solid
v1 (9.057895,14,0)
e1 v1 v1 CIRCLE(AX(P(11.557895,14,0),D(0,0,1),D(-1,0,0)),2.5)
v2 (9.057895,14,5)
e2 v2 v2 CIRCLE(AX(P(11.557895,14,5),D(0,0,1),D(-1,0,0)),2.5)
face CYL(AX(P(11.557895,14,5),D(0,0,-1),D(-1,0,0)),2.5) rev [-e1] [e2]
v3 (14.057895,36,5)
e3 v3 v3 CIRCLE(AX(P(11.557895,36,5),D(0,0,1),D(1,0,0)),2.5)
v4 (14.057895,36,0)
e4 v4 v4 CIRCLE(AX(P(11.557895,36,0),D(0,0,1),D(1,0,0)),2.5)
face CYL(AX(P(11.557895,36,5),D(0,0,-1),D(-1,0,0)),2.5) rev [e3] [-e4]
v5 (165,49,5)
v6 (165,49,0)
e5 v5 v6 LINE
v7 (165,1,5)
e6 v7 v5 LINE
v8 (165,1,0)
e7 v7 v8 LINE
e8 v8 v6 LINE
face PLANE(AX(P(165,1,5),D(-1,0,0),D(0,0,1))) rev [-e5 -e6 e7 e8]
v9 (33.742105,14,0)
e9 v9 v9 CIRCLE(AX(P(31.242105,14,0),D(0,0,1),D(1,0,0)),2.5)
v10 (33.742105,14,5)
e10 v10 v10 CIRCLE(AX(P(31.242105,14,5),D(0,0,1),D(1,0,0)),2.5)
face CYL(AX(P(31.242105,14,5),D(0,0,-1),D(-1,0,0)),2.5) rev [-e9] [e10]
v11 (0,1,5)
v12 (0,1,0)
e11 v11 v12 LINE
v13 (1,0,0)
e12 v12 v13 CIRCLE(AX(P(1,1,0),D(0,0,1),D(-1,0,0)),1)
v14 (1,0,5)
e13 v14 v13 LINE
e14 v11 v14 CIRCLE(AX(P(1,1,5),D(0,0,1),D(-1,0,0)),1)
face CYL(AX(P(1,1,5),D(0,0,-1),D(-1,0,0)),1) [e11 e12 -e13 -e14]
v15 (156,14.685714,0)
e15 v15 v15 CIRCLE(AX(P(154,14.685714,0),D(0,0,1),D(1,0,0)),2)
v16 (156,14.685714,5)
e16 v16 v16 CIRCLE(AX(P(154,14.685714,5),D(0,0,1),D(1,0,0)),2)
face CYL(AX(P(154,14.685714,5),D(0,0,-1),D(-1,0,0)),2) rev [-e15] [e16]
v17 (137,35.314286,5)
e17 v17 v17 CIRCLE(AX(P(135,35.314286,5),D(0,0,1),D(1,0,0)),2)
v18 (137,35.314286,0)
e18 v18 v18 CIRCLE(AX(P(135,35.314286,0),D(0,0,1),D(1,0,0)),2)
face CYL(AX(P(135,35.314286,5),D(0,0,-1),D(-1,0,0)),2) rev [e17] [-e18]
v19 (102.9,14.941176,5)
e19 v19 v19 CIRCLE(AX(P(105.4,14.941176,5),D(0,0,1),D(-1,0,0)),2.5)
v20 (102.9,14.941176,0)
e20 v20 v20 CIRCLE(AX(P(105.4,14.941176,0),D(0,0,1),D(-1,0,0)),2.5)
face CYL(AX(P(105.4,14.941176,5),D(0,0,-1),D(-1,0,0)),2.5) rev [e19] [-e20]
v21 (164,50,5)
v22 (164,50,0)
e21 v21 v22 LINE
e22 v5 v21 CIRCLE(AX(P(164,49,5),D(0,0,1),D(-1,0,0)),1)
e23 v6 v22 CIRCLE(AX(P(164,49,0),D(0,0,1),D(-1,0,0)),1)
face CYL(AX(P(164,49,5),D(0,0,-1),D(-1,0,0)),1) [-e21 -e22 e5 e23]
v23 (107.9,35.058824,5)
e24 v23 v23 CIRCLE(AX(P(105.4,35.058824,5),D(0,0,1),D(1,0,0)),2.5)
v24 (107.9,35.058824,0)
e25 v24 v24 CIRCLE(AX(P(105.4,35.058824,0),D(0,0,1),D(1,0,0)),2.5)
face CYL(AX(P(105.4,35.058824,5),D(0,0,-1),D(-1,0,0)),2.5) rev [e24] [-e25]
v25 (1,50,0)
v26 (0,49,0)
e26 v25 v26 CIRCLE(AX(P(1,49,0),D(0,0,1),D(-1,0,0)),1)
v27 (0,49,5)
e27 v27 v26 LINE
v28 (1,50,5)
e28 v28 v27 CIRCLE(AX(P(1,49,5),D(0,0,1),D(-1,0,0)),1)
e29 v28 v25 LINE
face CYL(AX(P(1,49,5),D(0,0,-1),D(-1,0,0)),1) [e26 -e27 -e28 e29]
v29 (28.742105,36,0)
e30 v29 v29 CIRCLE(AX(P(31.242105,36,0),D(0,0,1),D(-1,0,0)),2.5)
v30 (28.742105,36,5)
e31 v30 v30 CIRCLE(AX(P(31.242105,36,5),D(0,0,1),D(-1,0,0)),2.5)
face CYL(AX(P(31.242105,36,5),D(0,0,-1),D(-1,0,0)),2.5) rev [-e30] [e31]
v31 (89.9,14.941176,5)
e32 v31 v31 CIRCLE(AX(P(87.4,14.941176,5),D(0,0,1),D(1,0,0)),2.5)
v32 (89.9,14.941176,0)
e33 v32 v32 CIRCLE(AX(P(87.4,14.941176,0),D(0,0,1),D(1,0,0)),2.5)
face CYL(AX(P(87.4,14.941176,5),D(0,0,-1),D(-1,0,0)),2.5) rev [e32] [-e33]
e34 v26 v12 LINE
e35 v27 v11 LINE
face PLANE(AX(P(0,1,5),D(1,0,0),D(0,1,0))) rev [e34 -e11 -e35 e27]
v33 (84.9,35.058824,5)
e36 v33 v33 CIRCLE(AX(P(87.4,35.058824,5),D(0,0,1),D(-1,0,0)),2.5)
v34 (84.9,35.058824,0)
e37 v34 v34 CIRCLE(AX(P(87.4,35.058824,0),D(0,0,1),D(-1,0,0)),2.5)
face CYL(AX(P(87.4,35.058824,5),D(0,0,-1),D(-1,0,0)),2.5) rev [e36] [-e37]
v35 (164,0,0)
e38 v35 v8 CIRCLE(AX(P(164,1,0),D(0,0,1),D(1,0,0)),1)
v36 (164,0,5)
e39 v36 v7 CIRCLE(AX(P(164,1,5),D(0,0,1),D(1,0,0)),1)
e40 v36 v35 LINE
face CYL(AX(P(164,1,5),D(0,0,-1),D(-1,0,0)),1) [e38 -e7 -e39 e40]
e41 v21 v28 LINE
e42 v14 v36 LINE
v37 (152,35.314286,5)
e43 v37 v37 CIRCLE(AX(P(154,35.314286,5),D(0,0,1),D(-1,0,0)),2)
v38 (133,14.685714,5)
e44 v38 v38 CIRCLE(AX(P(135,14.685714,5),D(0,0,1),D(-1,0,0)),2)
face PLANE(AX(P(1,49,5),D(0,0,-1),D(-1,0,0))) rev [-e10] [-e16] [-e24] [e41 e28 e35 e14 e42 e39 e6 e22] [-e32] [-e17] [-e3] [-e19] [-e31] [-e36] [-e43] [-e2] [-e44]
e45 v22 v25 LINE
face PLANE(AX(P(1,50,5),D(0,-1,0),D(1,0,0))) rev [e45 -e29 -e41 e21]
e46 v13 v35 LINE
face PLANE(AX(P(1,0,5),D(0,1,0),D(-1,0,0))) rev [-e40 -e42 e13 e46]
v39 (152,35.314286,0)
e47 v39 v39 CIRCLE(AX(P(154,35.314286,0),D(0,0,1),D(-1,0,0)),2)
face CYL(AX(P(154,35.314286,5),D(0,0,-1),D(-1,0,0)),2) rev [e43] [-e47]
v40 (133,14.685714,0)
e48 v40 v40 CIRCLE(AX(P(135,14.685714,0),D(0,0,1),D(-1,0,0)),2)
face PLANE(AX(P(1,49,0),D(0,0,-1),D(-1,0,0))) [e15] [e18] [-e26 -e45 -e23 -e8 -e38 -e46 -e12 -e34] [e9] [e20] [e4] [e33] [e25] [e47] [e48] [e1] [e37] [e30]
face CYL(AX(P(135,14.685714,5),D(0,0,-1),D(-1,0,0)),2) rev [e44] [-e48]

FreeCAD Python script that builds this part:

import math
import FreeCAD as App
import Part
import Sketcher
from FreeCAD import Vector

doc = App.newDocument("Part")
body = doc.addObject("PartDesign::Body", "Body")

sketch1 = body.newObject("Sketcher::SketchObject", "Sketch")
sketch1.AttachmentSupport = (doc.getObject("XY_Plane"), [""])
sketch1.MapMode = "FlatFace"
sketch1.addGeometry(Part.LineSegment(Vector(1, 0, 0), Vector(164, 0, 0)), False)
sketch1.addGeometry(Part.ArcOfCircle(Part.Circle(Vector(164, 1, 0), Vector(0, 0, 1), 1), math.radians(-90), math.radians(0)), False)
sketch1.addGeometry(Part.LineSegment(Vector(165, 1, 0), Vector(165, 49, 0)), False)
sketch1.addGeometry(Part.ArcOfCircle(Part.Circle(Vector(164, 49, 0), Vector(0, 0, 1), 1), math.radians(0), math.radians(90)), False)
sketch1.addGeometry(Part.LineSegment(Vector(164, 50, 0), Vector(1, 50, 0)), False)
sketch1.addGeometry(Part.ArcOfCircle(Part.Circle(Vector(1, 49, 0), Vector(0, 0, 1), 1), math.radians(90), math.radians(180)), False)
sketch1.addGeometry(Part.LineSegment(Vector(0, 49, 0), Vector(0, 1, 0)), False)
sketch1.addGeometry(Part.ArcOfCircle(Part.Circle(Vector(1, 1, 0), Vector(0, 0, 1), 1), math.radians(-180), math.radians(-90)), False)
sketch1.addGeometry(Part.Circle(Vector(11.557895, 14, 0), Vector(0, 0, 1), 2.5), False)
sketch1.addGeometry(Part.Circle(Vector(31.242105, 14, 0), Vector(0, 0, 1), 2.5), False)
sketch1.addGeometry(Part.Circle(Vector(87.4, 14.941176, 0), Vector(0, 0, 1), 2.5), False)
sketch1.addGeometry(Part.Circle(Vector(105.4, 14.941176, 0), Vector(0, 0, 1), 2.5), False)
sketch1.addGeometry(Part.Circle(Vector(135, 14.685714, 0), Vector(0, 0, 1), 2), False)
sketch1.addGeometry(Part.Circle(Vector(154, 14.685714, 0), Vector(0, 0, 1), 2), False)
sketch1.addGeometry(Part.Circle(Vector(11.557895, 36, 0), Vector(0, 0, 1), 2.5), False)
sketch1.addGeometry(Part.Circle(Vector(31.242105, 36, 0), Vector(0, 0, 1), 2.5), False)
sketch1.addGeometry(Part.Circle(Vector(87.4, 35.058824, 0), Vector(0, 0, 1), 2.5), False)
sketch1.addGeometry(Part.Circle(Vector(105.4, 35.058824, 0), Vector(0, 0, 1), 2.5), False)
sketch1.addGeometry(Part.Circle(Vector(135, 35.314286, 0), Vector(0, 0, 1), 2), False)
sketch1.addGeometry(Part.Circle(Vector(154, 35.314286, 0), Vector(0, 0, 1), 2), False)
sketch1.addConstraint(Sketcher.Constraint("Tangent", 0, 2, 1, 1))
sketch1.addConstraint(Sketcher.Constraint("Tangent", 1, 2, 2, 1))
sketch1.addConstraint(Sketcher.Constraint("Tangent", 2, 2, 3, 1))
sketch1.addConstraint(Sketcher.Constraint("Tangent", 3, 2, 4, 1))
sketch1.addConstraint(Sketcher.Constraint("Tangent", 4, 2, 5, 1))
sketch1.addConstraint(Sketcher.Constraint("Tangent", 5, 2, 6, 1))
sketch1.addConstraint(Sketcher.Constraint("Tangent", 6, 2, 7, 1))
sketch1.addConstraint(Sketcher.Constraint("Tangent", 7, 2, 0, 1))
sketch1.addConstraint(Sketcher.Constraint("Horizontal", 0))
sketch1.addConstraint(Sketcher.Constraint("Vertical", 2))
sketch1.addConstraint(Sketcher.Constraint("Horizontal", 4))
sketch1.addConstraint(Sketcher.Constraint("Vertical", 6))
sketch1.addConstraint(Sketcher.Constraint("Equal", 1, 3))
sketch1.addConstraint(Sketcher.Constraint("Equal", 3, 5))
sketch1.addConstraint(Sketcher.Constraint("Equal", 5, 7))
sketch1.addConstraint(Sketcher.Constraint("Equal", 8, 9))
sketch1.addConstraint(Sketcher.Constraint("Equal", 9, 10))
sketch1.addConstraint(Sketcher.Constraint("Equal", 10, 11))
sketch1.addConstraint(Sketcher.Constraint("Equal", 12, 13))
sketch1.addConstraint(Sketcher.Constraint("Equal", 11, 14))
sketch1.addConstraint(Sketcher.Constraint("Equal", 14, 15))
sketch1.addConstraint(Sketcher.Constraint("Equal", 15, 16))
sketch1.addConstraint(Sketcher.Constraint("Equal", 16, 17))
sketch1.addConstraint(Sketcher.Constraint("Equal", 13, 18))
sketch1.addConstraint(Sketcher.Constraint("Equal", 18, 19))
sketch1.addConstraint(Sketcher.Constraint("PointOnObject", 0, 2, -1))
sketch1.addConstraint(Sketcher.Constraint("PointOnObject", 5, 2, -2))
sketch1.addConstraint(Sketcher.Constraint("Horizontal", 8, 3, 9, 3))
sketch1.addConstraint(Sketcher.Constraint("Horizontal", 10, 3, 11, 3))
sketch1.addConstraint(Sketcher.Constraint("Horizontal", 12, 3, 13, 3))
sketch1.addConstraint(Sketcher.Constraint("Horizontal", 14, 3, 15, 3))
sketch1.addConstraint(Sketcher.Constraint("Horizontal", 16, 3, 17, 3))
sketch1.addConstraint(Sketcher.Constraint("Horizontal", 18, 3, 19, 3))
sketch1.addConstraint(Sketcher.Constraint("Vertical", 8, 3, 14, 3))
sketch1.addConstraint(Sketcher.Constraint("Vertical", 9, 3, 15, 3))
sketch1.addConstraint(Sketcher.Constraint("Vertical", 10, 3, 16, 3))
sketch1.addConstraint(Sketcher.Constraint("Vertical", 11, 3, 17, 3))
sketch1.addConstraint(Sketcher.Constraint("Vertical", 12, 3, 18, 3))
sketch1.addConstraint(Sketcher.Constraint("Vertical", 13, 3, 19, 3))
sketch1.addConstraint(Sketcher.Constraint("Diameter", 8, 5.0))
sketch1.addConstraint(Sketcher.Constraint("Diameter", 12, 4.0))
sketch1.addConstraint(Sketcher.Constraint("Radius", 1, 1.0))
sketch1.addConstraint(Sketcher.Constraint("DistanceX", 0, 1, 0, 2, 163.0))
sketch1.addConstraint(Sketcher.Constraint("DistanceY", 2, 1, 2, 2, 48.0))
sketch1.addConstraint(Sketcher.Constraint("DistanceY", -1, 1, 8, 3, 14.0))
sketch1.addConstraint(Sketcher.Constraint("DistanceX", -1, 1, 12, 3, 135.0))
sketch1.addConstraint(Sketcher.Constraint("DistanceX", -1, 1, 13, 3, 154.0))
sketch1.addConstraint(Sketcher.Constraint("DistanceY", -1, 1, 14, 3, 36.0))
sketch1.addConstraint(Sketcher.Constraint("DistanceX", 10, 3, 11, 3, 18.0))
sketch1.addConstraint(Sketcher.Constraint("DistanceX", -1, 1, 10, 3, 87.4))
sketch1.addConstraint(Sketcher.Constraint("DistanceX", 8, 3, 9, 3, 19.684211))
sketch1.addConstraint(Sketcher.Constraint("DistanceY", 12, 3, 16, 3, 20.373109))
sketch1.addConstraint(Sketcher.Constraint("DistanceY", 12, 3, 18, 3, 20.628571))
sketch1.addConstraint(Sketcher.Constraint("DistanceY", 11, 3, 18, 3, 20.373109))
sketch1.addConstraint(Sketcher.Constraint("DistanceX", -1, 1, 8, 3, 11.557895))
sketch1.addConstraint(Sketcher.Constraint("DistanceY", -1, 1, 10, 3, 14.941176))
pad1 = body.newObject("PartDesign::Pad", "Pad")
pad1.Profile = sketch1
pad1.Length = 5

doc.recompute()
